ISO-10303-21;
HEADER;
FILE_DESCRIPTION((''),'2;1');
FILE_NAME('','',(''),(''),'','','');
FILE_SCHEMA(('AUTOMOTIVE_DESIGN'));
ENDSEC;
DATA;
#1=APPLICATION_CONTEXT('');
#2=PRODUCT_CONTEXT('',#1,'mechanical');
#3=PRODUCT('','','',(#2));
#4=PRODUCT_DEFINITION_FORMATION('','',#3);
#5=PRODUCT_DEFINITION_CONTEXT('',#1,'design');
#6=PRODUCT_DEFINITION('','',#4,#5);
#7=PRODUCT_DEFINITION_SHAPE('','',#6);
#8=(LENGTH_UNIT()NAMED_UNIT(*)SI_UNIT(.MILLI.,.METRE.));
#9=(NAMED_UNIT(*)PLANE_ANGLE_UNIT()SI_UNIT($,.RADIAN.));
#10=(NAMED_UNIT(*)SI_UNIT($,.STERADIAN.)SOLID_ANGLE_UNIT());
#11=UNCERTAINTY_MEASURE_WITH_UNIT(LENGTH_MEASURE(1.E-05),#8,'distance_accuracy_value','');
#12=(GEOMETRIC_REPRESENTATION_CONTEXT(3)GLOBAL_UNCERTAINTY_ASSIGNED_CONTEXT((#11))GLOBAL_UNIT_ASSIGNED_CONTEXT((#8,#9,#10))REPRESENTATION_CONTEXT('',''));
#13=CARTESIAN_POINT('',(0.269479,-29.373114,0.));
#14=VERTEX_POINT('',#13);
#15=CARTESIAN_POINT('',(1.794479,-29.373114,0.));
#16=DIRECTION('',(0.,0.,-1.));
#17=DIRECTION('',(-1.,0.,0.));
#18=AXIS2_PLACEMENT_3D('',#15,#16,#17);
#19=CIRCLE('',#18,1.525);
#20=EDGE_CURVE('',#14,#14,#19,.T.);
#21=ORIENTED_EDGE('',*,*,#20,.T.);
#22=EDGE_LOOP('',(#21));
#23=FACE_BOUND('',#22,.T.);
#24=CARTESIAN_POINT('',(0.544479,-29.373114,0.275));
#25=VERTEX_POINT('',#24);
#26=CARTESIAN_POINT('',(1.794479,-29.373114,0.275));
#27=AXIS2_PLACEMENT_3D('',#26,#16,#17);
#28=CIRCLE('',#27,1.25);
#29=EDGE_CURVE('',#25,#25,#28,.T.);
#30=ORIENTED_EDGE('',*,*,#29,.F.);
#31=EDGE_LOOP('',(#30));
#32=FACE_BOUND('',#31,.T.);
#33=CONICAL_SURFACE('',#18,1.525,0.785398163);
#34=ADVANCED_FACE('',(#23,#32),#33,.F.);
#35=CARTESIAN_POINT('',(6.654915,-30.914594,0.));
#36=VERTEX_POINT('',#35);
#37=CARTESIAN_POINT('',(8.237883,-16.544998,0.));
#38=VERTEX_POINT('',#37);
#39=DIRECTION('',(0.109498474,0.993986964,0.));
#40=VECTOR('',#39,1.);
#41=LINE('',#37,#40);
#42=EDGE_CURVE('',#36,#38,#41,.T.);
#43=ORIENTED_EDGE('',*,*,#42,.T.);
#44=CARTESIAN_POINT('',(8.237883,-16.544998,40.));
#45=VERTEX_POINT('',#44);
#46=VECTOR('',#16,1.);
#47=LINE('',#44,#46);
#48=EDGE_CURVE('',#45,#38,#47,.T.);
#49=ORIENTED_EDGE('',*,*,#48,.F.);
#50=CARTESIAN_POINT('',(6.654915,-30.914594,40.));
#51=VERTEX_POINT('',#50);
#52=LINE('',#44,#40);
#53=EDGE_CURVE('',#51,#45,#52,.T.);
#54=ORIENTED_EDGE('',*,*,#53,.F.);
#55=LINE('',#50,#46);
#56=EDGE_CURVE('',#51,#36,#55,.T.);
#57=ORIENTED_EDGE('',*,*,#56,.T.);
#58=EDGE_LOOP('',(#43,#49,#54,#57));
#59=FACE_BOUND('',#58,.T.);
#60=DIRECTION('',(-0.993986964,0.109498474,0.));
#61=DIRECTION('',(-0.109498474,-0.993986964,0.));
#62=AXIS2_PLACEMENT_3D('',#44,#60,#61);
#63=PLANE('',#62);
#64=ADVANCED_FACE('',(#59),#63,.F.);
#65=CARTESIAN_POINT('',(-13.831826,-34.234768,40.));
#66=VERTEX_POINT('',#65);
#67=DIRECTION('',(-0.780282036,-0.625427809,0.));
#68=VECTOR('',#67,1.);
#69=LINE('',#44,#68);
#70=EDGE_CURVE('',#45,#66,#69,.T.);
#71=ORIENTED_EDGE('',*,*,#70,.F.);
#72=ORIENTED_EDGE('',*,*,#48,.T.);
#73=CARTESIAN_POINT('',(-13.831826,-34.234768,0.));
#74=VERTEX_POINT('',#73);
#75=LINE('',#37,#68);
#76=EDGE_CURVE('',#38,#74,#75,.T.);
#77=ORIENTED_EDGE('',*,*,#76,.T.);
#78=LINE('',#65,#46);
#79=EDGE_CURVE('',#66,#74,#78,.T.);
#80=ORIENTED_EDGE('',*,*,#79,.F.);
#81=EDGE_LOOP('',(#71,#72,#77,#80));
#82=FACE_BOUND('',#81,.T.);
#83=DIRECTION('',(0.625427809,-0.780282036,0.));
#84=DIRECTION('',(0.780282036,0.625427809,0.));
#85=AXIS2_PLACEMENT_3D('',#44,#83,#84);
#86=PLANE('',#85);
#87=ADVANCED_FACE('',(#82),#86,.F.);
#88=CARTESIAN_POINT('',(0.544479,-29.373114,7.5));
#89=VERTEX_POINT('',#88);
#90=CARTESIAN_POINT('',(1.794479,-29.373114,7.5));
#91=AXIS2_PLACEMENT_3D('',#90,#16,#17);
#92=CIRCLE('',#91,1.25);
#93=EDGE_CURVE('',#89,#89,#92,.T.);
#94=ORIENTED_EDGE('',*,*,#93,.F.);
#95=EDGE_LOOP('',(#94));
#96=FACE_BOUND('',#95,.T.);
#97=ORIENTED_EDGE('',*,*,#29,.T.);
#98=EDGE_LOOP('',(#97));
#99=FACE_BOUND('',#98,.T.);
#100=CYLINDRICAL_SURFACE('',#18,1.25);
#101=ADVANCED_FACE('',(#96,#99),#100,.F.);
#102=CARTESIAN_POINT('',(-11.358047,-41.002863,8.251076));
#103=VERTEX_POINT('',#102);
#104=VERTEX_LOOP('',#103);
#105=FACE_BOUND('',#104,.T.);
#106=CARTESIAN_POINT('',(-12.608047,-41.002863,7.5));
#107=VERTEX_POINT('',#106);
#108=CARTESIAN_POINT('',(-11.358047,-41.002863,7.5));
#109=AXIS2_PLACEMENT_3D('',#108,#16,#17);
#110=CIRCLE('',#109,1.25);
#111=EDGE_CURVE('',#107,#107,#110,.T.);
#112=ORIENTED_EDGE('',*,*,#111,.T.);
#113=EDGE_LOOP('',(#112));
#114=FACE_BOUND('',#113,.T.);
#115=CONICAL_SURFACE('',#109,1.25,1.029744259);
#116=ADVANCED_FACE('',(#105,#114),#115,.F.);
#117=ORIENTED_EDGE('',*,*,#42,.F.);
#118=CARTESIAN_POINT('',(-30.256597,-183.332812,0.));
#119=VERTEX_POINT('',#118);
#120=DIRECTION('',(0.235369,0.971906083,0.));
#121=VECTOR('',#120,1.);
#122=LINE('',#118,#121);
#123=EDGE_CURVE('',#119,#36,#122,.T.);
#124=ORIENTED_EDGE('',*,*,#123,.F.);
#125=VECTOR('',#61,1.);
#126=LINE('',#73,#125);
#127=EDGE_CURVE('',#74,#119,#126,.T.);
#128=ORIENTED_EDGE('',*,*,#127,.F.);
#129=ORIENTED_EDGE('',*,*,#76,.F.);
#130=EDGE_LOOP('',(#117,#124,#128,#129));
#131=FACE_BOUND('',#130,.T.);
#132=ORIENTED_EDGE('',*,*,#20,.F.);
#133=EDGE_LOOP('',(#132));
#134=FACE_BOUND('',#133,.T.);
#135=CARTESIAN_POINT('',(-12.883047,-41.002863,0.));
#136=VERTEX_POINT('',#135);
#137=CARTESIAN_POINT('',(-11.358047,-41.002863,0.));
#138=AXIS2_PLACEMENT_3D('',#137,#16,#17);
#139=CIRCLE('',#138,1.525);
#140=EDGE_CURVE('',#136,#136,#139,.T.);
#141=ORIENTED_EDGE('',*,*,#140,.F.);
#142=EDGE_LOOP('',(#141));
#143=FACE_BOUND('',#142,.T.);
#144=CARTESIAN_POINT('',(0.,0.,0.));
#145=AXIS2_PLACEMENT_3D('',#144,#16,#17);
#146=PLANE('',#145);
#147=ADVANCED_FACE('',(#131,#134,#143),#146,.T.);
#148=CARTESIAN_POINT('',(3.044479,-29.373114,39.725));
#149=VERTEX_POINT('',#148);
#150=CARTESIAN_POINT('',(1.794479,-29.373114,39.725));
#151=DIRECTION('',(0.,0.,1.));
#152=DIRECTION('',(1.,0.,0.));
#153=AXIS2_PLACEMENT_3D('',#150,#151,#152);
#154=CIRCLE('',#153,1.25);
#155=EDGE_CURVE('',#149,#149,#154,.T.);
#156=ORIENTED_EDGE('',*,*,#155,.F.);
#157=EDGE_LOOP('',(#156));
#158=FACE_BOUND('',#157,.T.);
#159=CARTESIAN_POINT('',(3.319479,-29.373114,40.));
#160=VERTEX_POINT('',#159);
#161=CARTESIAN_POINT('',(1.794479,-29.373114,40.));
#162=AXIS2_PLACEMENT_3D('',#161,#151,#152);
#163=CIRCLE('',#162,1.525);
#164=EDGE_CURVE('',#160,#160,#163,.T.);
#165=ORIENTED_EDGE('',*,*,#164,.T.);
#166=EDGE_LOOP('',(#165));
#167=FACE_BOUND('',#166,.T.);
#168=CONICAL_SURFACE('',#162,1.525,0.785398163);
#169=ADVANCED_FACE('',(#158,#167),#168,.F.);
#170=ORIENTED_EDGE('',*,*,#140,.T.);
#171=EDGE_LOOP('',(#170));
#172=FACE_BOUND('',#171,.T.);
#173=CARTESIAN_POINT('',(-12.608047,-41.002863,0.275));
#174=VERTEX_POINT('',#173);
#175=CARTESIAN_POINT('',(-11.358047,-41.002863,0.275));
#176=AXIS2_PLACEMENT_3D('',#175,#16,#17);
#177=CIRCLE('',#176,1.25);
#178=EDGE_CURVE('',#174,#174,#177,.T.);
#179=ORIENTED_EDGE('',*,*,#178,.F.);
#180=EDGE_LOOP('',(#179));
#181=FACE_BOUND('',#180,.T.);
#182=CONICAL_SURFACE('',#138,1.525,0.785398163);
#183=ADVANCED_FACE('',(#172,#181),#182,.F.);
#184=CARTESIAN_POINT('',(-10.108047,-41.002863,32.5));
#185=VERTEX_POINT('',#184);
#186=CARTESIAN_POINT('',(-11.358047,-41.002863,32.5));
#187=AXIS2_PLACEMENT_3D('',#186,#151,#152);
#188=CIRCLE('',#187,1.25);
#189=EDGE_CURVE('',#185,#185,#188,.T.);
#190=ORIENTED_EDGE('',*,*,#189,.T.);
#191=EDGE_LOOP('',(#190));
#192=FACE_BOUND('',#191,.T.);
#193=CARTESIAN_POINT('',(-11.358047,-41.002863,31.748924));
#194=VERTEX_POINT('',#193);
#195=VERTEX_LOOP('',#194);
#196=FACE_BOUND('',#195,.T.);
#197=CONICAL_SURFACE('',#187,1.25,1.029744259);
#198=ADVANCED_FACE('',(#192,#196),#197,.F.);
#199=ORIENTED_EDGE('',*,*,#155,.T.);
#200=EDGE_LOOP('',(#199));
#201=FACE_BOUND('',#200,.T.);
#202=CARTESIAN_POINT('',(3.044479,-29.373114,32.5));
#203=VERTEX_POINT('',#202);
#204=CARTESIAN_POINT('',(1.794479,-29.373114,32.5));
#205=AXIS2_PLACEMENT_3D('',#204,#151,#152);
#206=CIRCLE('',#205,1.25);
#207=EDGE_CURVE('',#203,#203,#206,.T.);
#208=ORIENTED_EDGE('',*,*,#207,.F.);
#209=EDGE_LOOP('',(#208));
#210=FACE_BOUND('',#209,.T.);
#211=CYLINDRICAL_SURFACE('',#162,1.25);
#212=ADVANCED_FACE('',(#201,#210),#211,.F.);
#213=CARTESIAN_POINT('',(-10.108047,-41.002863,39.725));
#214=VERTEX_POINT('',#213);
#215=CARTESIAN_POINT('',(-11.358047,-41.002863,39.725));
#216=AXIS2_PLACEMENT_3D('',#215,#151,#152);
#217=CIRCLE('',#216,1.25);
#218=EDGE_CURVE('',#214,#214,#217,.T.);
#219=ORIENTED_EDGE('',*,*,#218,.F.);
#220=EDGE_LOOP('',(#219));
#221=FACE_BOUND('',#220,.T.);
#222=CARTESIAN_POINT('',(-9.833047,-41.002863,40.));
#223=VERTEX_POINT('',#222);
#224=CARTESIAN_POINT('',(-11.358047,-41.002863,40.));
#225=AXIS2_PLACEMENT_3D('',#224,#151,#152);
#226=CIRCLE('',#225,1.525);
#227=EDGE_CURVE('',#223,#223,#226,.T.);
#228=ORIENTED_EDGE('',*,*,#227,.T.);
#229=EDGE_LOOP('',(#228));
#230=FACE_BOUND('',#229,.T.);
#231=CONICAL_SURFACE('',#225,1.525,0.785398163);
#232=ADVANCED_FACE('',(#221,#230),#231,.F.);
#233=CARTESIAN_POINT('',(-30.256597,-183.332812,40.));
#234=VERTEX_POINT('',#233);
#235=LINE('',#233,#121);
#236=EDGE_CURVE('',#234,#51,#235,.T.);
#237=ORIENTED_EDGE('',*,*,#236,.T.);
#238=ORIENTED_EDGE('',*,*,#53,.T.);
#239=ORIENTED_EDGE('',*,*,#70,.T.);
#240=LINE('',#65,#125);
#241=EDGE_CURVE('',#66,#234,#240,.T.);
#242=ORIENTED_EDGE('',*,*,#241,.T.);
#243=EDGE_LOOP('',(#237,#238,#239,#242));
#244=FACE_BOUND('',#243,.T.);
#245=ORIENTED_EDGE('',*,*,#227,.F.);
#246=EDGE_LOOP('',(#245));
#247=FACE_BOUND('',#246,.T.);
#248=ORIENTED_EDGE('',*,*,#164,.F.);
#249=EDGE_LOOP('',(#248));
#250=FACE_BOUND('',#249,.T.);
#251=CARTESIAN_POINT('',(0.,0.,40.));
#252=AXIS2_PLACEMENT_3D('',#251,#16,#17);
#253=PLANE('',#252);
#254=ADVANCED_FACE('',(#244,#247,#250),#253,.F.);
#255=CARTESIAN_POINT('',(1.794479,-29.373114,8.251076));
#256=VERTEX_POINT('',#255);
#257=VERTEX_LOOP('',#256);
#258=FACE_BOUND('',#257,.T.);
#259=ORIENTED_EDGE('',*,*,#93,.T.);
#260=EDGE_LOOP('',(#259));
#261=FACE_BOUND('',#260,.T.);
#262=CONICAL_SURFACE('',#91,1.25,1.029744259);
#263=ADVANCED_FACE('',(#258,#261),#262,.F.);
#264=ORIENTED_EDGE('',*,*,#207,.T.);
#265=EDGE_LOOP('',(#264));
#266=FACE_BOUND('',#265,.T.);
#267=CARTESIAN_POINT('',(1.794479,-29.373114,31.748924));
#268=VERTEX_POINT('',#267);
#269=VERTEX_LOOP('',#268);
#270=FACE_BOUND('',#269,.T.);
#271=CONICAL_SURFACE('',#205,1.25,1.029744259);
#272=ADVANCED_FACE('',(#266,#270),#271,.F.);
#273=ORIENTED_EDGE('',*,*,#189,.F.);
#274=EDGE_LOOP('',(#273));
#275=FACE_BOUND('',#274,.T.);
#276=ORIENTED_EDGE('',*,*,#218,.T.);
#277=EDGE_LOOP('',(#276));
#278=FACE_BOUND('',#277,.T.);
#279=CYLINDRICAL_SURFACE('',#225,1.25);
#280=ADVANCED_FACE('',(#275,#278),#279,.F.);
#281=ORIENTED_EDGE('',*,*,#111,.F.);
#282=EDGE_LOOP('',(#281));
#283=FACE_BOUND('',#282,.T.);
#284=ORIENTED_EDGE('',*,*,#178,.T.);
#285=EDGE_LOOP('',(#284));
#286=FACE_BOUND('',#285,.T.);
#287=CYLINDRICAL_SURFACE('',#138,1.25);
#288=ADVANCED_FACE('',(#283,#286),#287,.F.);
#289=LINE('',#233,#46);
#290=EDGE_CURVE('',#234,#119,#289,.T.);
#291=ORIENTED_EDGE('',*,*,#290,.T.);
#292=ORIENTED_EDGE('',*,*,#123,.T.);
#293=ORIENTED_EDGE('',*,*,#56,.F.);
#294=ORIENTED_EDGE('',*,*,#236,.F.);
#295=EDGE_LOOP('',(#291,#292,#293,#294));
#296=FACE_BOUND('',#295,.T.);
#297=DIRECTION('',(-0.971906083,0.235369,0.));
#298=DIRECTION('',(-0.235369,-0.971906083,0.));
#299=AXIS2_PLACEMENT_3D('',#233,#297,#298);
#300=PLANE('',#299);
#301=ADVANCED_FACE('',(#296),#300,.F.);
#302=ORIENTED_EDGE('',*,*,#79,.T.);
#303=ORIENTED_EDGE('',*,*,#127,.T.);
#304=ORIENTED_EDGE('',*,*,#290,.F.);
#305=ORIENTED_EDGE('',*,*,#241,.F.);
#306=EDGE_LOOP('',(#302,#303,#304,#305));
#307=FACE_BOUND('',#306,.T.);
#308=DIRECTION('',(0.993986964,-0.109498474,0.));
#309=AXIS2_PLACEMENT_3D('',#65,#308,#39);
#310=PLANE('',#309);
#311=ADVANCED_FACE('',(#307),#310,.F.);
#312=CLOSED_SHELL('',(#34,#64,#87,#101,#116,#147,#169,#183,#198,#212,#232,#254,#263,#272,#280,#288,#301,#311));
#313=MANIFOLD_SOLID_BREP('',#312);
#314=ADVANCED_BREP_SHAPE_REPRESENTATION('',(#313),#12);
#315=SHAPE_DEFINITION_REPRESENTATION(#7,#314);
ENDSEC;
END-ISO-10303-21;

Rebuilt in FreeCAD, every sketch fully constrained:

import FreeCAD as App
import Part
import Sketcher

V = App.Vector
Q = App.Units.Quantity


def add_polygon(sketch, points):
    """Adds a closed chain of lines whose ends are joined by coincident constraints."""
    first, n = sketch.GeometryCount, len(points)
    for a, b in zip(points, points[1:] + points[:1]):
        sketch.addGeometry(Part.LineSegment(App.Vector(*a, 0), App.Vector(*b, 0)), False)
    for i in range(n):
        sketch.addConstraint(Sketcher.Constraint("Coincident", first + i, 2, first + (i + 1) % n, 1))

doc = App.newDocument("Part")
body = doc.addObject("PartDesign::Body", "Body")

# Sketch on XY plane
sketch1 = body.newObject("Sketcher::SketchObject", "Sketch")
sketch1.AttachmentSupport = (doc.getObject("XY_Plane"), [""])
sketch1.MapMode = "FlatFace"
add_polygon(sketch1, [(8, -17), (-14, -34), (-30, -183), (7, -31)])  # lines 0-3
sketch1.addConstraint(Sketcher.Constraint("Parallel", 1, 3))
sketch1.addConstraint(Sketcher.Constraint("Distance", 1, 150.0))
sketch1.addConstraint(Sketcher.Constraint("DistanceY", 3, 2, -1, 1, 16.544998))
sketch1.addConstraint(Sketcher.Constraint("Distance", 0, 28.284271))
sketch1.addConstraint(Sketcher.Constraint("Distance", 2, 156.82402))
sketch1.addConstraint(Sketcher.Constraint("DistanceX", 1, 2, 0, 2, 16.424771))
sketch1.addConstraint(Sketcher.Constraint("DistanceX", 0, 2, 2, 2, 20.486742))
sketch1.addConstraint(Sketcher.Constraint("DistanceX", 0, 2, -1, 1, 13.831826))
pad1 = body.newObject("PartDesign::Pad", "Pad")
pad1.Profile = sketch1
pad1.Length = 40

# Sketch on YZ plane
sketch2 = body.newObject("Sketcher::SketchObject", "Sketch001")
sketch2.AttachmentSupport = (doc.getObject("YZ_Plane"), [""])
sketch2.MapMode = "FlatFace"
sketch2.AttachmentOffset = App.Placement(V(0, 0, -11.358047), App.Rotation())
add_polygon(sketch2, [(-41, 31.75), (-41, 40), (-42.53, 40), (-42.25, 39.73), (-42.25, 32.5)])  # lines 0-4
sketch2.addGeometry(Part.LineSegment(V(-41, 40, 0), V(-41, 31.75, 0)), True)  # axis
sketch2.addConstraint(Sketcher.Constraint("Vertical", 0))
sketch2.addConstraint(Sketcher.Constraint("Horizontal", 1))
sketch2.addConstraint(Sketcher.Constraint("Vertical", 3))
sketch2.addConstraint(Sketcher.Constraint("Vertical", 5))
sketch2.addConstraint(Sketcher.Constraint("Coincident", 5, 1, 0, 2))
sketch2.addConstraint(Sketcher.Constraint("Equal", 0, 5))
sketch2.addConstraint(Sketcher.Constraint("Angle", 2, Q("-45 deg")))
sketch2.addConstraint(Sketcher.Constraint("Angle", 4, Q("-31 deg")))
sketch2.addConstraint(Sketcher.Constraint("DistanceY", -1, 1, 0, 2, 40.0))
sketch2.addConstraint(Sketcher.Constraint("DistanceY", -1, 1, 3, 2, 32.5))
sketch2.addConstraint(Sketcher.Constraint("DistanceX", 1, 2, 1, 1, 1.525))
sketch2.addConstraint(Sketcher.Constraint("DistanceY", 3, 2, 3, 1, 7.225))
sketch2.addConstraint(Sketcher.Constraint("DistanceX", 0, 2, -1, 1, 41.002863))
groove = body.newObject("PartDesign::Groove", "Groove")
groove.Profile = sketch2
groove.ReferenceAxis = (sketch2, ["Axis0"])
groove.Angle = 360
doc.recompute()

datumline = body.newObject("PartDesign::Line", "DatumLine")
datumline.Placement = App.Placement(V(0, 0, 0), App.Rotation(V(0, 0, 1), V(0.749142925, 0.662408392, 0)))
linearpattern = body.newObject("PartDesign::LinearPattern", "LinearPattern")
linearpattern.Originals = [groove]
linearpattern.Direction = (datumline, [""])
linearpattern.Mode = "offset"
linearpattern.Offset = 17.556765
linearpattern.Occurrences = 2
body.Tip = linearpattern
doc.recompute()

datumplane = body.newObject("PartDesign::Plane", "DatumPlane")
datumplane.AttachmentSupport = (doc.getObject("XY_Plane"), [""])
datumplane.MapMode = "FlatFace"
datumplane.AttachmentOffset = App.Placement(V(0, 0, 20), App.Rotation())
mirrored = body.newObject("PartDesign::Mirrored", "Mirrored")
mirrored.Originals = [groove]
mirrored.MirrorPlane = (datumplane, [""])
body.Tip = mirrored

# Sketch on YZ plane
sketch3 = body.newObject("Sketcher::SketchObject", "Sketch002")
sketch3.AttachmentSupport = (doc.getObject("YZ_Plane"), [""])
sketch3.MapMode = "FlatFace"
sketch3.AttachmentOffset = App.Placement(V(0, 0, 1.794479), App.Rotation())
add_polygon(sketch3, [(-29.37, 0), (-29.37, 8.25), (-30.62, 7.5), (-30.62, 0.28), (-30.9, 0)])  # lines 0-4
sketch3.addGeometry(Part.LineSegment(V(-29.37, 8.25, 0), V(-29.37, 0, 0)), True)  # axis
sketch3.addConstraint(Sketcher.Constraint("Vertical", 0))
sketch3.addConstraint(Sketcher.Constraint("Vertical", 2))
sketch3.addConstraint(Sketcher.Constraint("Horizontal", 4))
sketch3.addConstraint(Sketcher.Constraint("Vertical", 5))
sketch3.addConstraint(Sketcher.Constraint("Coincident", 5, 1, 0, 2))
sketch3.addConstraint(Sketcher.Constraint("PointOnObject", 3, 2, -1))
sketch3.addConstraint(Sketcher.Constraint("PointOnObject", 5, 2, -1))
sketch3.addConstraint(Sketcher.Constraint("Angle", 1, Q("-149 deg")))
sketch3.addConstraint(Sketcher.Constraint("Angle", 3, Q("-135 deg")))
sketch3.addConstraint(Sketcher.Constraint("DistanceY", -1, 1, 1, 2, 7.5))
sketch3.addConstraint(Sketcher.Constraint("DistanceX", 4, 1, 4, 2, 1.525))
sketch3.addConstraint(Sketcher.Constraint("DistanceY", 2, 2, 2, 1, 7.225))
sketch3.addConstraint(Sketcher.Constraint("DistanceX", 0, 2, -1, 1, 29.373114))
groove2 = body.newObject("PartDesign::Groove", "Groove001")
groove2.Profile = sketch3
groove2.ReferenceAxis = (sketch3, ["Axis0"])
groove2.Angle = 360

doc.recompute()
